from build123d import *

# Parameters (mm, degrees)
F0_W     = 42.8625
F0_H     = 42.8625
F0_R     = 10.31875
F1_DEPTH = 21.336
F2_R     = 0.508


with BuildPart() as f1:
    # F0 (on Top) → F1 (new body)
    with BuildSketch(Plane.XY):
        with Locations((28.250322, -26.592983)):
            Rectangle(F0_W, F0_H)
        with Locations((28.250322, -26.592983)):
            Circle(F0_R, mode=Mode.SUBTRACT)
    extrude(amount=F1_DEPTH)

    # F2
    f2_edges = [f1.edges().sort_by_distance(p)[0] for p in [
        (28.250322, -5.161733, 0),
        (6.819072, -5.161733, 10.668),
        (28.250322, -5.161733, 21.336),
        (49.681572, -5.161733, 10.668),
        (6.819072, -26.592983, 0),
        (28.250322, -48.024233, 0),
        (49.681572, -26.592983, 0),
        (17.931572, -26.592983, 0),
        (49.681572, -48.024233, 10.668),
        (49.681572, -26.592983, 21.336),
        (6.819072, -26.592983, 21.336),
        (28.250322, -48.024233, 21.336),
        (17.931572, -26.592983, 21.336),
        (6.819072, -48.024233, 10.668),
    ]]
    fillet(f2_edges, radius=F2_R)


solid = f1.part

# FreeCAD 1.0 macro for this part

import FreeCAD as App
import Part
import Sketcher
Q = App.Units.Quantity


def add_polygon(sketch, points):
    """Adds a closed chain of lines whose ends are joined by coincident constraints."""
    first, n = sketch.GeometryCount, len(points)
    for a, b in zip(points, points[1:] + points[:1]):
        sketch.addGeometry(Part.LineSegment(App.Vector(*a, 0), App.Vector(*b, 0)), False)
    for i in range(n):
        sketch.addConstraint(Sketcher.Constraint("Coincident", first + i, 2, first + (i + 1) % n, 1))

doc = App.newDocument("Part")
body = doc.addObject("PartDesign::Body", "Body")

# Sketch on XY plane
sketch1 = body.newObject("Sketcher::SketchObject", "Sketch")
sketch1.AttachmentSupport = (doc.getObject("XY_Plane"), [""])
sketch1.MapMode = "FlatFace"
add_polygon(sketch1, [(6.819072, -5.161733), (6.819072, -48.024233), (49.681572, -48.024233), (49.681572, -5.161733)])  # lines 0-3
sketch1.addGeometry(Part.Circle(App.Vector(28.250322, -26.592983, 0), App.Vector(0, 0, 1), 10.31875), False)  # 4
sketch1.addConstraint(Sketcher.Constraint("Vertical", 0))
sketch1.addConstraint(Sketcher.Constraint("Horizontal", 1))
sketch1.addConstraint(Sketcher.Constraint("Vertical", 2))
sketch1.addConstraint(Sketcher.Constraint("Horizontal", 3))
sketch1.addConstraint(Sketcher.Constraint("Equal", 3, 0))
sketch1.addConstraint(Sketcher.Constraint("Diameter", 4, Q("0.8125 in")))
sketch1.addConstraint(Sketcher.Constraint("DistanceX", 1, 1, 1, 2, Q("1.6875 in")))
sketch1.addConstraint(Sketcher.Constraint("DistanceX", 0, 2, 4, 3, Q("0.84375 in")))
sketch1.addConstraint(Sketcher.Constraint("DistanceY", 0, 2, 4, 3, Q("0.84375 in")))
sketch1.addConstraint(Sketcher.Constraint("DistanceX", -1, 1, 4, 3, Q("28.250322 mm")))
sketch1.addConstraint(Sketcher.Constraint("DistanceY", 4, 3, -1, 1, Q("26.592983 mm")))
pad1 = body.newObject("PartDesign::Pad", "Pad")
pad1.Profile = sketch1
pad1.Length = Q("0.84 in")
doc.recompute()

fillet = body.newObject("PartDesign::Fillet", "Fillet")
fillet.Base = (pad1, ["Edge1"])
fillet.UseAllEdges = True
fillet.Radius = Q("0.02 in")

doc.recompute()
